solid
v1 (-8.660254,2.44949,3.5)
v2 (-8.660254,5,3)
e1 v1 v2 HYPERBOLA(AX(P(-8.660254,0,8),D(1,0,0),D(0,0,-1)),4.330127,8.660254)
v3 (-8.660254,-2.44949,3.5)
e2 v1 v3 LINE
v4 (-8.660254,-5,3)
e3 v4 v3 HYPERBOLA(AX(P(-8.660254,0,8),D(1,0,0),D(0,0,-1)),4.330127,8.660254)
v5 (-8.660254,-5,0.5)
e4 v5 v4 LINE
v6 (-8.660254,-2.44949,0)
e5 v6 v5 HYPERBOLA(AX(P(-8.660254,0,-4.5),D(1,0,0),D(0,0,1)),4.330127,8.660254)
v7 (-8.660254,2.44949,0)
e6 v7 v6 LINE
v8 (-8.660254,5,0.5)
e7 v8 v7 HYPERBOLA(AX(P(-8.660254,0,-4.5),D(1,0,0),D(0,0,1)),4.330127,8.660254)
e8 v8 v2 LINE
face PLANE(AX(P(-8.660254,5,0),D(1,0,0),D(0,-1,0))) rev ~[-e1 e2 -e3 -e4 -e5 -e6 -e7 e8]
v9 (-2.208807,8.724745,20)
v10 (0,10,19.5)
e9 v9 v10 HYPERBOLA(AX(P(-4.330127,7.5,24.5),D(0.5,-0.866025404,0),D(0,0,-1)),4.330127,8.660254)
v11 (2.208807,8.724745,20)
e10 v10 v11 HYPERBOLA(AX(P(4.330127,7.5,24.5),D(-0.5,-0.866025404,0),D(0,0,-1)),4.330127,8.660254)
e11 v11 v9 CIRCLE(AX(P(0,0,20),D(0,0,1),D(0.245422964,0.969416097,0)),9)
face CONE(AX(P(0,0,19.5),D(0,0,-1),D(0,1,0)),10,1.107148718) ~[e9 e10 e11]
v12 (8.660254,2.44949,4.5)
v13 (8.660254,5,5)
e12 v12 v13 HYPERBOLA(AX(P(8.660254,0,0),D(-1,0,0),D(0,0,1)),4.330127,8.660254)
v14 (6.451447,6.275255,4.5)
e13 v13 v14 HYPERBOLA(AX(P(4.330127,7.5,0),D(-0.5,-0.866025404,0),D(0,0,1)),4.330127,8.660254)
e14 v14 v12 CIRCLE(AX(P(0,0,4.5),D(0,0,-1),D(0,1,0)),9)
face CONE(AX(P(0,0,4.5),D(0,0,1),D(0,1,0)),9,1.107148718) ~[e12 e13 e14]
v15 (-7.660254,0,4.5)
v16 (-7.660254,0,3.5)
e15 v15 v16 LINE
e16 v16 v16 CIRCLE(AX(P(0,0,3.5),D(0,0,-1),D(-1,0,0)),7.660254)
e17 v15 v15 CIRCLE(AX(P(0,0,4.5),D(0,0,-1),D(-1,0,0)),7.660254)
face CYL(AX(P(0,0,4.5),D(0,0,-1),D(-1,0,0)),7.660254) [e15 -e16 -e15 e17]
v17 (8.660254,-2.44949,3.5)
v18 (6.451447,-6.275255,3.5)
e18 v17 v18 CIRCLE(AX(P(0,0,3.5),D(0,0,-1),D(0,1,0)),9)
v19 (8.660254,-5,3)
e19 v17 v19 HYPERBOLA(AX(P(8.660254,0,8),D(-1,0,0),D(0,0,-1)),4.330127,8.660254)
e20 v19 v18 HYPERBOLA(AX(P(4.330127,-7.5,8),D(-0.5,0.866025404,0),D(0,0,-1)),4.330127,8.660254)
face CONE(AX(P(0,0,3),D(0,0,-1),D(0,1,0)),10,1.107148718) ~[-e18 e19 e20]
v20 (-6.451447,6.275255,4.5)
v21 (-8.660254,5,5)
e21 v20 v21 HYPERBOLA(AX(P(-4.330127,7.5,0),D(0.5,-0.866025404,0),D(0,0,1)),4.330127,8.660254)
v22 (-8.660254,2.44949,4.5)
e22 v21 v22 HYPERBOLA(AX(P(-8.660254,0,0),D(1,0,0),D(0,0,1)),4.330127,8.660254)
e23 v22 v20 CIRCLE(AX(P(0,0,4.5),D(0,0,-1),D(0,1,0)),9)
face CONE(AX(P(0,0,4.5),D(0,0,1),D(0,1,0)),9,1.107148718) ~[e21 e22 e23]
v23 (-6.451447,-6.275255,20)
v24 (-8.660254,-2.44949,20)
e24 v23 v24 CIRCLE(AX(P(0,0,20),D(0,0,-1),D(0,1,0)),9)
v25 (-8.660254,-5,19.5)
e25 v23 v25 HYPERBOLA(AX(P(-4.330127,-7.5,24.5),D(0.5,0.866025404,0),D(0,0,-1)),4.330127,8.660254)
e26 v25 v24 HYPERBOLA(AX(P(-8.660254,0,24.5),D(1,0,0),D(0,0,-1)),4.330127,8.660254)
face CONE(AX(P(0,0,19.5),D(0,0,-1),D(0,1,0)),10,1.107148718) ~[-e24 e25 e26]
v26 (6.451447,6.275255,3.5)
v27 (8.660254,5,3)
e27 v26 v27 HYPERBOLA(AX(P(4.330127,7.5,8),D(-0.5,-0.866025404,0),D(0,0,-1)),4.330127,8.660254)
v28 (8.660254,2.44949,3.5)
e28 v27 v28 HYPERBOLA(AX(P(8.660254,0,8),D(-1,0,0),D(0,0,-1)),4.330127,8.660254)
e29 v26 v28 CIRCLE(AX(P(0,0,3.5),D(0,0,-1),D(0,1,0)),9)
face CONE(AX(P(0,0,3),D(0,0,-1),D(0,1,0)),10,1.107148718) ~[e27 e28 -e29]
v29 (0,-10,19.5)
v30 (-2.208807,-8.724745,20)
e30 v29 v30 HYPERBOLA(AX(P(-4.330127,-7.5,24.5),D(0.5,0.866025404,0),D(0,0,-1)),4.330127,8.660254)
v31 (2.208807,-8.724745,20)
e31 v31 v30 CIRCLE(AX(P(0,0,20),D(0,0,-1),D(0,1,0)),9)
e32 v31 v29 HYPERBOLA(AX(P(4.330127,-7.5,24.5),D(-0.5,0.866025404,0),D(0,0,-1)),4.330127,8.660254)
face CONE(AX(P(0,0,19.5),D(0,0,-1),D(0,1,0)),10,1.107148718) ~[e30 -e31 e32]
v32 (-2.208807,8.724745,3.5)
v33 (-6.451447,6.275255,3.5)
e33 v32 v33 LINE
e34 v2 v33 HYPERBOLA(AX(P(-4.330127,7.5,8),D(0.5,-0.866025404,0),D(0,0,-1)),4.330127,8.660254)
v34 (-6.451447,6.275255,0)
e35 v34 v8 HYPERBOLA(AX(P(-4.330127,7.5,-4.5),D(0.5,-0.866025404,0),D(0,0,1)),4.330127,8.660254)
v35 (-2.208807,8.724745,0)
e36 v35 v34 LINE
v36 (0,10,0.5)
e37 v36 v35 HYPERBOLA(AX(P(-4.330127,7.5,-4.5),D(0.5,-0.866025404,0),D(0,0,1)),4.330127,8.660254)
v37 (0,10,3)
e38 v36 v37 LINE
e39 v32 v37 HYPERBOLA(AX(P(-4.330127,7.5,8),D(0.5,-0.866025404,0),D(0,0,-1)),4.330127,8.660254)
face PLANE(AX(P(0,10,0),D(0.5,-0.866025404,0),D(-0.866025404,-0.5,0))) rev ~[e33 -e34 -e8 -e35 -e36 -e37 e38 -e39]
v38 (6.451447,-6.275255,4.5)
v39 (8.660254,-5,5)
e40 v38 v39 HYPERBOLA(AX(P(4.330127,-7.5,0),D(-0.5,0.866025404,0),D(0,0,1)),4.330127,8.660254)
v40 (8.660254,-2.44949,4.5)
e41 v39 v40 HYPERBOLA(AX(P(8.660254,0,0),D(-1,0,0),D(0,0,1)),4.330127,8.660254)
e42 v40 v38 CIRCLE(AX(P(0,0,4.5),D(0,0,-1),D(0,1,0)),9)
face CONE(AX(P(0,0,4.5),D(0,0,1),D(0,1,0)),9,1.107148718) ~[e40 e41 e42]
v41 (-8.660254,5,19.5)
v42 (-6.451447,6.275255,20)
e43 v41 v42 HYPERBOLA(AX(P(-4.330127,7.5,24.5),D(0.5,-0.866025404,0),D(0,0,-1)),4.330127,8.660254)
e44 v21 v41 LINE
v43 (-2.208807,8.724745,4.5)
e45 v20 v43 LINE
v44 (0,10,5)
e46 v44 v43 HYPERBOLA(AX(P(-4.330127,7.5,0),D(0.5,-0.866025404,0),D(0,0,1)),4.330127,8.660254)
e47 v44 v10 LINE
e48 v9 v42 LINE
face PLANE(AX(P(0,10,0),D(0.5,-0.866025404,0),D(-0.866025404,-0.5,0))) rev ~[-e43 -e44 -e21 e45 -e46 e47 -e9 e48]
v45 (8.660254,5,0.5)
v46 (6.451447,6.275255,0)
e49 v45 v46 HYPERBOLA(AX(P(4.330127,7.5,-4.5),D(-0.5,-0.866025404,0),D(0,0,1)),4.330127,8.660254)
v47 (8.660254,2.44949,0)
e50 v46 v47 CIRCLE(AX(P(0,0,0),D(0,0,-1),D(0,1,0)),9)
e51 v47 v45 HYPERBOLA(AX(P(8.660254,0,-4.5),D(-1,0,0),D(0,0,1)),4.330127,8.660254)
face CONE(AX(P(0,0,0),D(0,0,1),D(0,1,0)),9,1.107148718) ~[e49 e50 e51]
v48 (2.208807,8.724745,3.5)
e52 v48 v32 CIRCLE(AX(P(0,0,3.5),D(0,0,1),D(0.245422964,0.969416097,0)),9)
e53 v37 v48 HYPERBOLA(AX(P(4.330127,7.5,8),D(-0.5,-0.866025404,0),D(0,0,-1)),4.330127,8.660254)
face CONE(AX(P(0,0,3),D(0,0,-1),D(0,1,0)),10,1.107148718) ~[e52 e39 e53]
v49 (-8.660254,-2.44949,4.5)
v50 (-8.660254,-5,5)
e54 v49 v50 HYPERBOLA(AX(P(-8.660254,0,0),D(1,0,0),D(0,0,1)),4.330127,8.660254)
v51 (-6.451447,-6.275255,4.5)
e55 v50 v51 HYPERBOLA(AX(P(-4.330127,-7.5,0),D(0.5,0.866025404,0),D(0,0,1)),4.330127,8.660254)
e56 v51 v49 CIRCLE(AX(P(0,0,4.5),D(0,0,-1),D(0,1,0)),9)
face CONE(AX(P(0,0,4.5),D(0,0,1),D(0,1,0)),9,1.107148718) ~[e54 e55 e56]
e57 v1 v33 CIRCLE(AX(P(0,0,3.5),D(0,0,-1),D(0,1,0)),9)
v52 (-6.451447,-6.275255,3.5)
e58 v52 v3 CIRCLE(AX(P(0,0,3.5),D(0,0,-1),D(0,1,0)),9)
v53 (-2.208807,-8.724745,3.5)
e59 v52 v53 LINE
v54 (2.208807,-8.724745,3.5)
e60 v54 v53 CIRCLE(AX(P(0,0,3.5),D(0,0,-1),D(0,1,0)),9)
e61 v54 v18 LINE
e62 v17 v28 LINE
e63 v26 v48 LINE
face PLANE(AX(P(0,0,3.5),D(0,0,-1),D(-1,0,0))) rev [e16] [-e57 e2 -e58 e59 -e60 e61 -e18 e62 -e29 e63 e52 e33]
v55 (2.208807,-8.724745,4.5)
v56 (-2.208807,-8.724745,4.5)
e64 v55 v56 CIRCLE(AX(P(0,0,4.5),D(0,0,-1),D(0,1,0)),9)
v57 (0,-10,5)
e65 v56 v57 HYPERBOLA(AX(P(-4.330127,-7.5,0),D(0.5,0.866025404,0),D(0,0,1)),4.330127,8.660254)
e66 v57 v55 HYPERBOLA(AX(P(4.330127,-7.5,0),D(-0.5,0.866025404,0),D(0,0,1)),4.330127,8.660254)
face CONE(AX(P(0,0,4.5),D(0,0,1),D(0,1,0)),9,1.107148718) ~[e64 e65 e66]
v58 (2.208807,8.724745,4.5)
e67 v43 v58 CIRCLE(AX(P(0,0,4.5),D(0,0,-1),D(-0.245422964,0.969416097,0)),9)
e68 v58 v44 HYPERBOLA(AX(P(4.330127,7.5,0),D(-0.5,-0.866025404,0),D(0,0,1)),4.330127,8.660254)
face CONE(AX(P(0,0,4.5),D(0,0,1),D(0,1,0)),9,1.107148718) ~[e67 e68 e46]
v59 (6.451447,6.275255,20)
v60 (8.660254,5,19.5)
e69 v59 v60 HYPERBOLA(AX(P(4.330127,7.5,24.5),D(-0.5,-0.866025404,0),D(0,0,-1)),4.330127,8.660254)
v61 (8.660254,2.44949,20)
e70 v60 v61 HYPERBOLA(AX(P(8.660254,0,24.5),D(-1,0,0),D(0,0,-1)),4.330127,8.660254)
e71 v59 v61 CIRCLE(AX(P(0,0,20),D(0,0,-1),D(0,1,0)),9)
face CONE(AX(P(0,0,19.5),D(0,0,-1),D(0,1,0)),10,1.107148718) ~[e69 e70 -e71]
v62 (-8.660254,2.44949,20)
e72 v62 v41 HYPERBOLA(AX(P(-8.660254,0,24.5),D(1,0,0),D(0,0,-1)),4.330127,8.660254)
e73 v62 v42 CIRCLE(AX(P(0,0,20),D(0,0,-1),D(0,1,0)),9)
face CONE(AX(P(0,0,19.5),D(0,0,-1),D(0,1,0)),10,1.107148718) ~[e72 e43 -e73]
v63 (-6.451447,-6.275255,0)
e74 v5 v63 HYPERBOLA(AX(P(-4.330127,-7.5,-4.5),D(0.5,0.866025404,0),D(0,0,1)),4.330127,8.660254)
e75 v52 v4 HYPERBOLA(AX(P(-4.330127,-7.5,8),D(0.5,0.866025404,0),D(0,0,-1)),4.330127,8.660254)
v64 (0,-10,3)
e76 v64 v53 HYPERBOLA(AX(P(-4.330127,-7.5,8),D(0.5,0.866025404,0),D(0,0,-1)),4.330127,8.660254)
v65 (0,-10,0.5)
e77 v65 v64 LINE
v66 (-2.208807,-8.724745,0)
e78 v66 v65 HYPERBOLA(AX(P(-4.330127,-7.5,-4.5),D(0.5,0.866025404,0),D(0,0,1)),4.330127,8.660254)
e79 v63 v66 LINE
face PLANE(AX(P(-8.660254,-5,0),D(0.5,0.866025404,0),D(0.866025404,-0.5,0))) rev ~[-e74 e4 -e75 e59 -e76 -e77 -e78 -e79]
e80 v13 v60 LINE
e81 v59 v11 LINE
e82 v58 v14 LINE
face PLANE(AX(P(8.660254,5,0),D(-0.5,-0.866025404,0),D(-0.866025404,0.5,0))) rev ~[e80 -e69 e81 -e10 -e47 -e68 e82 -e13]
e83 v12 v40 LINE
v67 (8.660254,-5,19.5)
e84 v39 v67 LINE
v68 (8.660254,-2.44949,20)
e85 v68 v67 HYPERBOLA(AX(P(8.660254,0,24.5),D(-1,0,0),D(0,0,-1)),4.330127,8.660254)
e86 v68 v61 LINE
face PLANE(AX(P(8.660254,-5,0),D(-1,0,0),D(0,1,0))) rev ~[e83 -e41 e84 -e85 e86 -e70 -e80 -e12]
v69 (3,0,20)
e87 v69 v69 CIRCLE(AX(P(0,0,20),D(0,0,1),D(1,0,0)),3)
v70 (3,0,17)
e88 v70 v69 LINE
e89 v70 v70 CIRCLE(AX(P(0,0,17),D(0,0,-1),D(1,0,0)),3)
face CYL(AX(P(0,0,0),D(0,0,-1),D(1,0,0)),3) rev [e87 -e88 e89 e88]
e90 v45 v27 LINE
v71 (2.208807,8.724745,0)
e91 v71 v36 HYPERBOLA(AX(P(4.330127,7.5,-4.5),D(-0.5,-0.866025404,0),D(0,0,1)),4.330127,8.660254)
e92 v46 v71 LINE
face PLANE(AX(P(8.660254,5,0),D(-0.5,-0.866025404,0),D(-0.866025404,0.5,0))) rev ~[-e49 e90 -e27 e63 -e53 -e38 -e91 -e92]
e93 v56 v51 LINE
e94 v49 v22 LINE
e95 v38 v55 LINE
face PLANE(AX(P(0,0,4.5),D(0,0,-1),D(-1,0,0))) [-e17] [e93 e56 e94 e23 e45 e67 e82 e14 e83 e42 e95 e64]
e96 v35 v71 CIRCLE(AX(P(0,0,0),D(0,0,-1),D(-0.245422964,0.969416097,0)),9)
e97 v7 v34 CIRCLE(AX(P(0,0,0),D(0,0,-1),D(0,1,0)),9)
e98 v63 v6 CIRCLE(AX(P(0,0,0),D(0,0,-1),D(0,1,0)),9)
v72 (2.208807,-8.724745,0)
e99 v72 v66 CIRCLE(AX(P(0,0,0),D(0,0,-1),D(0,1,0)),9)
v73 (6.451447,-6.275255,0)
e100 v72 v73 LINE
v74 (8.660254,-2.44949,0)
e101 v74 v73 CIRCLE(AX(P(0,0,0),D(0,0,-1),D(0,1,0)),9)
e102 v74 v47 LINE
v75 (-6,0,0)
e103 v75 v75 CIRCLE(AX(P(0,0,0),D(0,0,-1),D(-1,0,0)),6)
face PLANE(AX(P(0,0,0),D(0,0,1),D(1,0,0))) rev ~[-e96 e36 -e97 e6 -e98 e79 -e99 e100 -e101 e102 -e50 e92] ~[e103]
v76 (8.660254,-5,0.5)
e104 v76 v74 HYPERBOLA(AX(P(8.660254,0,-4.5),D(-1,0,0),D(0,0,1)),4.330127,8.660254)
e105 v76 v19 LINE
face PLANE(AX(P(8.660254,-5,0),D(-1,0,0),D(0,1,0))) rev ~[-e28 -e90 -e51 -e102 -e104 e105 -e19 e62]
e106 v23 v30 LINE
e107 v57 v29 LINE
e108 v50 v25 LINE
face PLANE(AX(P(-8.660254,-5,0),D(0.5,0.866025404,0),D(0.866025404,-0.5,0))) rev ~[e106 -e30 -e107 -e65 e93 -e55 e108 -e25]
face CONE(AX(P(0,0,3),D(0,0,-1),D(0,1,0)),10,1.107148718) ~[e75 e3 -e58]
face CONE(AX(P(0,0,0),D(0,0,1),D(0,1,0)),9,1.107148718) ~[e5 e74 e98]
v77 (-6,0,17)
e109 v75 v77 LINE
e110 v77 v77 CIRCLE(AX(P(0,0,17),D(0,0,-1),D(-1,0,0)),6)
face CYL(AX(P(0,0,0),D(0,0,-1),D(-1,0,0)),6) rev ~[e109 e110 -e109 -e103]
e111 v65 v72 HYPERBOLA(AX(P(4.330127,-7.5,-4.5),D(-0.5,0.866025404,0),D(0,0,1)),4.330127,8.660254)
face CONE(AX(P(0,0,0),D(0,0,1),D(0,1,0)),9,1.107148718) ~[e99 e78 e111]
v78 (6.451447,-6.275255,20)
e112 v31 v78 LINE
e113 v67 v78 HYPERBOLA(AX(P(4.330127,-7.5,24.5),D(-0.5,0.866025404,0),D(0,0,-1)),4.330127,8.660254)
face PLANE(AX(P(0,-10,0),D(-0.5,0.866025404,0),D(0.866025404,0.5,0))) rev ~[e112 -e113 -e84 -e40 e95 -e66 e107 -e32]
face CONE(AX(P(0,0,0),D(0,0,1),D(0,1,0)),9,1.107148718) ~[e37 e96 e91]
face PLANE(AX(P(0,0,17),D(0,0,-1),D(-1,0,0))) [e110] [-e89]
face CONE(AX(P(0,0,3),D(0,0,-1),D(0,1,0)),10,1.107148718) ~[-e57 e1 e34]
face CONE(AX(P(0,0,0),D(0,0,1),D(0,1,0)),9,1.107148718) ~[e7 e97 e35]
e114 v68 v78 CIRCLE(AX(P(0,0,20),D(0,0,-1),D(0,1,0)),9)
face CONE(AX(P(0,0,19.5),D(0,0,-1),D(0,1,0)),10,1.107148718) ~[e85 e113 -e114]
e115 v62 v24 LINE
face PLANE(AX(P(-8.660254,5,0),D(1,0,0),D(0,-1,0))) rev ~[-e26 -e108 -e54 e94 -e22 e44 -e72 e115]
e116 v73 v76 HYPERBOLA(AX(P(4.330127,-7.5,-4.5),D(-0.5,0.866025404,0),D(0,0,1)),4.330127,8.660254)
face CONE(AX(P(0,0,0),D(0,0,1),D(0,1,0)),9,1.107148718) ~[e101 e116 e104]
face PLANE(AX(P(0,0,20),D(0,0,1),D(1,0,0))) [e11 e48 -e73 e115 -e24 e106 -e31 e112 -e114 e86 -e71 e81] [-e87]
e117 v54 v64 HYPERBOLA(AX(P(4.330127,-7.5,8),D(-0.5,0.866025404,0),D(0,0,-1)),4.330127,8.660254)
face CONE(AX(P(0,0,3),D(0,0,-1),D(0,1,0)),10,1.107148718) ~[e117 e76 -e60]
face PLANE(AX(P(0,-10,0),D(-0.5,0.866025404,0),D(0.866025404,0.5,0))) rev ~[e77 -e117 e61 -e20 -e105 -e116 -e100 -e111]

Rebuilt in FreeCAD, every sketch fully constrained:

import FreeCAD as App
import Part
import Sketcher

V = App.Vector
Q = App.Units.Quantity

doc = App.newDocument("Part")
body = doc.addObject("PartDesign::Body", "Body")

# Sketch on XY plane
sketch1 = body.newObject("Sketcher::SketchObject", "Sketch")
sketch1.AttachmentSupport = (doc.getObject("XY_Plane"), [""])
sketch1.MapMode = "FlatFace"
sketch1.addGeometry(Part.LineSegment(V(-8.7, 5, 0), V(-8.7, -5, 0)), False)
sketch1.addGeometry(Part.LineSegment(V(-8.7, -5, 0), V(0, -10, 0)), False)
sketch1.addGeometry(Part.LineSegment(V(0, -10, 0), V(8.7, -5, 0)), False)
sketch1.addGeometry(Part.LineSegment(V(8.7, -5, 0), V(8.7, 5, 0)), False)
sketch1.addGeometry(Part.LineSegment(V(8.7, 5, 0), V(0, 10, 0)), False)
sketch1.addGeometry(Part.LineSegment(V(0, 10, 0), V(-8.7, 5, 0)), False)
sketch1.addGeometry(Part.Circle(V(0, 0, 0), V(0, 0, 1), 3), False)
sketch1.addConstraint(Sketcher.Constraint("Coincident", 0, 2, 1, 1))
sketch1.addConstraint(Sketcher.Constraint("Coincident", 1, 2, 2, 1))
sketch1.addConstraint(Sketcher.Constraint("Coincident", 2, 2, 3, 1))
sketch1.addConstraint(Sketcher.Constraint("Coincident", 3, 2, 4, 1))
sketch1.addConstraint(Sketcher.Constraint("Coincident", 4, 2, 5, 1))
sketch1.addConstraint(Sketcher.Constraint("Coincident", 5, 2, 0, 1))
sketch1.addConstraint(Sketcher.Constraint("Vertical", 0))
sketch1.addConstraint(Sketcher.Constraint("Vertical", 3))
sketch1.addConstraint(Sketcher.Constraint("Coincident", 6, 3, -1, 1))
sketch1.addConstraint(Sketcher.Constraint("Symmetric", 0, 2, 3, 2, -1, 1))
sketch1.addConstraint(Sketcher.Constraint("Symmetric", 1, 2, 4, 2, -1, 1))
sketch1.addConstraint(Sketcher.Constraint("PointOnObject", 1, 2, -2))
sketch1.addConstraint(Sketcher.Constraint("Parallel", 2, 5))
sketch1.addConstraint(Sketcher.Constraint("Horizontal", 0, 2, 2, 2))
sketch1.addConstraint(Sketcher.Constraint("Diameter", 6, 6.0))
sketch1.addConstraint(Sketcher.Constraint("DistanceY", 0, 2, 0, 1, 10.0))
sketch1.addConstraint(Sketcher.Constraint("Angle", 1, Q("-30 deg")))
sketch1.addConstraint(Sketcher.Constraint("Distance", 1, 10.0))
pad1 = body.newObject("PartDesign::Pad", "Pad")
pad1.Profile = sketch1
pad1.Length = 20

# Sketch on XY plane
sketch2 = body.newObject("Sketcher::SketchObject", "Sketch001")
sketch2.AttachmentSupport = (doc.getObject("XY_Plane"), [""])
sketch2.MapMode = "FlatFace"
sketch2.addGeometry(Part.Circle(V(0, 0, 0), V(0, 0, 1), 6), False)
sketch2.addConstraint(Sketcher.Constraint("Coincident", 0, 3, -1, 1))
sketch2.addConstraint(Sketcher.Constraint("Diameter", 0, 12.0))
pocket1 = body.newObject("PartDesign::Pocket", "Pocket")
pocket1.Profile = sketch2
pocket1.Length = 17
pocket1.Reversed = True

# Sketch on XZ plane
sketch3 = body.newObject("Sketcher::SketchObject", "Sketch002")
sketch3.AttachmentSupport = (doc.getObject("XZ_Plane"), [""])
sketch3.MapMode = "FlatFace"
sketch3.addGeometry(Part.LineSegment(V(-10.1, 3.5, 0), V(-10.1, 4.5, 0)), False)
sketch3.addGeometry(Part.LineSegment(V(-10.1, 4.5, 0), V(-7.7, 4.5, 0)), False)
sketch3.addGeometry(Part.LineSegment(V(-7.7, 4.5, 0), V(-7.7, 3.5, 0)), False)
sketch3.addGeometry(Part.LineSegment(V(-7.7, 3.5, 0), V(-10.1, 3.5, 0)), False)
sketch3.addConstraint(Sketcher.Constraint("Coincident", 0, 2, 1, 1))
sketch3.addConstraint(Sketcher.Constraint("Coincident", 1, 2, 2, 1))
sketch3.addConstraint(Sketcher.Constraint("Coincident", 2, 2, 3, 1))
sketch3.addConstraint(Sketcher.Constraint("Coincident", 3, 2, 0, 1))
sketch3.addConstraint(Sketcher.Constraint("Vertical", 0))
sketch3.addConstraint(Sketcher.Constraint("Horizontal", 1))
sketch3.addConstraint(Sketcher.Constraint("Vertical", 2))
sketch3.addConstraint(Sketcher.Constraint("Horizontal", 3))
sketch3.addConstraint(Sketcher.Constraint("DistanceY", 0, 1, 0, 2, 1.0))
sketch3.addConstraint(Sketcher.Constraint("DistanceY", -1, 1, 0, 2, 4.5))
sketch3.addConstraint(Sketcher.Constraint("DistanceX", 1, 1, 1, 2, 2.434236))
sketch3.addConstraint(Sketcher.Constraint("DistanceX", 0, 2, -1, 1, 10.09449))
groove = body.newObject("PartDesign::Groove", "Groove")
groove.Profile = sketch3
groove.ReferenceAxis = (sketch3, ["V_Axis"])
groove.Angle = 360

# Sketch on YZ plane
sketch4 = body.newObject("Sketcher::SketchObject", "Sketch003")
sketch4.AttachmentSupport = (doc.getObject("YZ_Plane"), [""])
sketch4.MapMode = "FlatFace"
sketch4.addGeometry(Part.LineSegment(V(10, 0.5, 0), V(9, 0, 0)), False)
sketch4.addGeometry(Part.LineSegment(V(9, 0, 0), V(10.5, 0, 0)), False)
sketch4.addGeometry(Part.LineSegment(V(10.5, 0, 0), V(10.5, 20, 0)), False)
sketch4.addGeometry(Part.LineSegment(V(10.5, 20, 0), V(9, 20, 0)), False)
sketch4.addGeometry(Part.LineSegment(V(9, 20, 0), V(10, 19.5, 0)), False)
sketch4.addGeometry(Part.LineSegment(V(10, 19.5, 0), V(10, 5, 0)), False)
sketch4.addGeometry(Part.LineSegment(V(10, 5, 0), V(9, 4.5, 0)), False)
sketch4.addGeometry(Part.LineSegment(V(9, 4.5, 0), V(9, 3.5, 0)), False)
sketch4.addGeometry(Part.LineSegment(V(9, 3.5, 0), V(10, 3, 0)), False)
sketch4.addGeometry(Part.LineSegment(V(10, 3, 0), V(10, 0.5, 0)), False)
sketch4.addConstraint(Sketcher.Constraint("Coincident", 0, 2, 1, 1))
sketch4.addConstraint(Sketcher.Constraint("Coincident", 1, 2, 2, 1))
sketch4.addConstraint(Sketcher.Constraint("Coincident", 2, 2, 3, 1))
sketch4.addConstraint(Sketcher.Constraint("Coincident", 3, 2, 4, 1))
sketch4.addConstraint(Sketcher.Constraint("Coincident", 4, 2, 5, 1))
sketch4.addConstraint(Sketcher.Constraint("Coincident", 5, 2, 6, 1))
sketch4.addConstraint(Sketcher.Constraint("Coincident", 6, 2, 7, 1))
sketch4.addConstraint(Sketcher.Constraint("Coincident", 7, 2, 8, 1))
sketch4.addConstraint(Sketcher.Constraint("Coincident", 8, 2, 9, 1))
sketch4.addConstraint(Sketcher.Constraint("Coincident", 9, 2, 0, 1))
sketch4.addConstraint(Sketcher.Constraint("Horizontal", 1))
sketch4.addConstraint(Sketcher.Constraint("Vertical", 2))
sketch4.addConstraint(Sketcher.Constraint("Horizontal", 3))
sketch4.addConstraint(Sketcher.Constraint("Vertical", 5))
sketch4.addConstraint(Sketcher.Constraint("Vertical", 7))
sketch4.addConstraint(Sketcher.Constraint("Vertical", 9))
sketch4.addConstraint(Sketcher.Constraint("PointOnObject", 0, 2, -1))
sketch4.addConstraint(Sketcher.Constraint("Parallel", 0, 6))
sketch4.addConstraint(Sketcher.Constraint("Parallel", 4, 8))
sketch4.addConstraint(Sketcher.Constraint("Vertical", 0, 2, 3, 2))
sketch4.addConstraint(Sketcher.Constraint("Vertical", 3, 2, 6, 2))
sketch4.addConstraint(Sketcher.Constraint("Vertical", 5, 2, 8, 2))
sketch4.addConstraint(Sketcher.Constraint("Equal", 0, 4))
sketch4.addConstraint(Sketcher.Constraint("DistanceY", 2, 1, 2, 2, 20.0))
sketch4.addConstraint(Sketcher.Constraint("DistanceY", 7, 2, 7, 1, 1.0))
sketch4.addConstraint(Sketcher.Constraint("DistanceY", 5, 2, 5, 1, 14.5))
sketch4.addConstraint(Sketcher.Constraint("DistanceY", 9, 2, 9, 1, 2.5))
sketch4.addConstraint(Sketcher.Constraint("DistanceX", -1, 1, 0, 2, 9.0))
sketch4.addConstraint(Sketcher.Constraint("DistanceX", -1, 1, 4, 2, 10.0))
sketch4.addConstraint(Sketcher.Constraint("DistanceX", 1, 1, 1, 2, 1.456162))
groove2 = body.newObject("PartDesign::Groove", "Groove001")
groove2.Profile = sketch4
groove2.ReferenceAxis = (sketch4, ["V_Axis"])
groove2.Angle = 360

doc.recompute()
